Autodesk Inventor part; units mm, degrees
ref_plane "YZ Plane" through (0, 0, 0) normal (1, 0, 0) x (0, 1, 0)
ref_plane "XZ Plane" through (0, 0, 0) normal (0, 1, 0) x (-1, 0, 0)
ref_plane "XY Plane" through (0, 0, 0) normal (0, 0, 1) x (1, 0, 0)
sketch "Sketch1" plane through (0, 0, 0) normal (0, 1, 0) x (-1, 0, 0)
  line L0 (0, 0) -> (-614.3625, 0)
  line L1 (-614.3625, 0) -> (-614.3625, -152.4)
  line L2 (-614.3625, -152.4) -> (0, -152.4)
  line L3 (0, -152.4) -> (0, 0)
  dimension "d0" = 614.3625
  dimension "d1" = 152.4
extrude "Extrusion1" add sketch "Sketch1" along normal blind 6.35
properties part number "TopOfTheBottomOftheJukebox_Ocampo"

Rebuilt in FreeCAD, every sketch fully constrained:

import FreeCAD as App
import Part
import Sketcher
Q = App.Units.Quantity

doc = App.newDocument("Part")
body = doc.addObject("PartDesign::Body", "Body")

sketch1 = body.newObject("Sketcher::SketchObject", "Sketch")
sketch1.AttachmentSupport = (doc.getObject("XZ_Plane"), [""])
sketch1.MapMode = "FlatFace"
sketch1.addGeometry([
    Part.LineSegment(App.Vector(0, -152, 0), App.Vector(0, 0, 0)),
    Part.LineSegment(App.Vector(0, 0, 0), App.Vector(614, 0, 0)),
    Part.LineSegment(App.Vector(614, 0, 0), App.Vector(614, -152, 0)),
    Part.LineSegment(App.Vector(614, -152, 0), App.Vector(0, -152, 0)),
], False)
sketch1.addConstraint([
    Sketcher.Constraint("Coincident", 0, 2, 1, 1),
    Sketcher.Constraint("Coincident", 1, 2, 2, 1),
    Sketcher.Constraint("Coincident", 2, 2, 3, 1),
    Sketcher.Constraint("Coincident", 3, 2, 0, 1),
    Sketcher.Constraint("Vertical", 0),
    Sketcher.Constraint("Horizontal", 1),
    Sketcher.Constraint("Vertical", 2),
    Sketcher.Constraint("Horizontal", 3),
    Sketcher.Constraint("Coincident", 0, 2, -1, 1),
    Sketcher.Constraint("DistanceY", 0, 1, 0, 2, Q("6 in")),
    Sketcher.Constraint("DistanceX", 1, 1, 1, 2, Q("24.1875 in")),
])
pad1 = body.newObject("PartDesign::Pad", "Pad")
pad1.Profile = sketch1
pad1.Length = Q("0.25 in")
pad1.Reversed = True

doc.recompute()
